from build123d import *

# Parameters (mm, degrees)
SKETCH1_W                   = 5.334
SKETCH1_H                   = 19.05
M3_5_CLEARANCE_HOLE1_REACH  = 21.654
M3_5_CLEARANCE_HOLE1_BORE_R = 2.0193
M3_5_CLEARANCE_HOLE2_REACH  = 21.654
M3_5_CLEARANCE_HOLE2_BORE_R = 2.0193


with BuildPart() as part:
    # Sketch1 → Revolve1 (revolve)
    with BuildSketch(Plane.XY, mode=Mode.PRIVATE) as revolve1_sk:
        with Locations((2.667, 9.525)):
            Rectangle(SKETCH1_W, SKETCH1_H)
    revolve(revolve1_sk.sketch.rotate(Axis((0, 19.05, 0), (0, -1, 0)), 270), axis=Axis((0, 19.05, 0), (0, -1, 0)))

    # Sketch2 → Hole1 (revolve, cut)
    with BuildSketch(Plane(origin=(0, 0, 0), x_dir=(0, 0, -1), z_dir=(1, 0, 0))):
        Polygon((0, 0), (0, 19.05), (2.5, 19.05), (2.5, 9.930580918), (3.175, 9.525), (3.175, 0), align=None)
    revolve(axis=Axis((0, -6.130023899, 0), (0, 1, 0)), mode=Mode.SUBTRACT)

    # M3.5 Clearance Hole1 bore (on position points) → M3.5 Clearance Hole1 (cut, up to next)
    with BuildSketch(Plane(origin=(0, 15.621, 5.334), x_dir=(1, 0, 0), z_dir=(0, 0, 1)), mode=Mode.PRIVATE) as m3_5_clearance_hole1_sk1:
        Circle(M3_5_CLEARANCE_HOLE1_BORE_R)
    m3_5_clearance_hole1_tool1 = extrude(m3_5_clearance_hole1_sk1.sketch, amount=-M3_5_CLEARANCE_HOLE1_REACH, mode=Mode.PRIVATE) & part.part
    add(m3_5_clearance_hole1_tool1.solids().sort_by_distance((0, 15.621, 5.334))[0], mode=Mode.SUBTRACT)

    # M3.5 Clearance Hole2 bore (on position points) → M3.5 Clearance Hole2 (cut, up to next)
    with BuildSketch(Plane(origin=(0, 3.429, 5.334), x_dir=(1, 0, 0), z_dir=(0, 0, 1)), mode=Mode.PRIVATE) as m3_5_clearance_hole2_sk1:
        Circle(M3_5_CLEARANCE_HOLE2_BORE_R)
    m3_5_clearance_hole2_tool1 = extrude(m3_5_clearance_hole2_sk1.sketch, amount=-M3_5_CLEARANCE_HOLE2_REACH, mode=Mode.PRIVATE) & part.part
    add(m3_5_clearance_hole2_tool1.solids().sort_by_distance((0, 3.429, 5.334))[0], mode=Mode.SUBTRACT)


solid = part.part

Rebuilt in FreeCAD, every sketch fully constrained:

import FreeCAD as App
import Part
import Sketcher
from FreeCAD import Vector
Q = App.Units.Quantity

doc = App.newDocument("Part")
body = doc.addObject("PartDesign::Body", "Body")

sketch1 = body.newObject("Sketcher::SketchObject", "Sketch")
sketch1.AttachmentSupport = (doc.getObject("XY_Plane"), [""])
sketch1.MapMode = "FlatFace"
sketch1.addGeometry(Part.LineSegment(Vector(0, 19, 0), Vector(0, 0, 0)), False)
sketch1.addGeometry(Part.LineSegment(Vector(0, 0, 0), Vector(5, 0, 0)), False)
sketch1.addGeometry(Part.LineSegment(Vector(5, 0, 0), Vector(5, 19, 0)), False)
sketch1.addGeometry(Part.LineSegment(Vector(5, 19, 0), Vector(0, 19, 0)), False)
sketch1.addConstraint(Sketcher.Constraint("Coincident", 0, 2, 1, 1))
sketch1.addConstraint(Sketcher.Constraint("Coincident", 1, 2, 2, 1))
sketch1.addConstraint(Sketcher.Constraint("Coincident", 2, 2, 3, 1))
sketch1.addConstraint(Sketcher.Constraint("Coincident", 3, 2, 0, 1))
sketch1.addConstraint(Sketcher.Constraint("Vertical", 0))
sketch1.addConstraint(Sketcher.Constraint("Horizontal", 1))
sketch1.addConstraint(Sketcher.Constraint("Vertical", 2))
sketch1.addConstraint(Sketcher.Constraint("Horizontal", 3))
sketch1.addConstraint(Sketcher.Constraint("Coincident", 0, 2, -1, 1))
sketch1.addConstraint(Sketcher.Constraint("DistanceX", 1, 1, 1, 2, Q("0.21 in")))
sketch1.addConstraint(Sketcher.Constraint("DistanceY", 0, 2, 0, 1, Q("0.75 in")))
revolution = body.newObject("PartDesign::Revolution", "Revolution")
revolution.Profile = sketch1
revolution.ReferenceAxis = (sketch1, ["V_Axis"])
revolution.Angle = 360

sketch2 = body.newObject("Sketcher::SketchObject", "Sketch001")
sketch2.AttachmentSupport = (doc.getObject("YZ_Plane"), [""])
sketch2.MapMode = "FlatFace"
sketch2.addGeometry(Part.LineSegment(Vector(19.1, 0, 0), Vector(0, 0, 0)), False)
sketch2.addGeometry(Part.LineSegment(Vector(0, 0, 0), Vector(0, -3.2, 0)), False)
sketch2.addGeometry(Part.LineSegment(Vector(0, -3.2, 0), Vector(9.5, -3.2, 0)), False)
sketch2.addGeometry(Part.LineSegment(Vector(9.5, -3.2, 0), Vector(9.9, -2.5, 0)), False)
sketch2.addGeometry(Part.LineSegment(Vector(9.9, -2.5, 0), Vector(19.1, -2.5, 0)), False)
sketch2.addGeometry(Part.LineSegment(Vector(19.1, -2.5, 0), Vector(19.1, 0, 0)), False)
sketch2.addConstraint(Sketcher.Constraint("Coincident", 0, 2, 1, 1))
sketch2.addConstraint(Sketcher.Constraint("Coincident", 1, 2, 2, 1))
sketch2.addConstraint(Sketcher.Constraint("Coincident", 2, 2, 3, 1))
sketch2.addConstraint(Sketcher.Constraint("Coincident", 3, 2, 4, 1))
sketch2.addConstraint(Sketcher.Constraint("Coincident", 4, 2, 5, 1))
sketch2.addConstraint(Sketcher.Constraint("Coincident", 5, 2, 0, 1))
sketch2.addConstraint(Sketcher.Constraint("Horizontal", 0))
sketch2.addConstraint(Sketcher.Constraint("Vertical", 1))
sketch2.addConstraint(Sketcher.Constraint("Horizontal", 2))
sketch2.addConstraint(Sketcher.Constraint("Horizontal", 4))
sketch2.addConstraint(Sketcher.Constraint("Vertical", 5))
sketch2.addConstraint(Sketcher.Constraint("Coincident", 0, 2, -1, 1))
sketch2.addConstraint(Sketcher.Constraint("Angle", 3, Q("59 deg")))
sketch2.addConstraint(Sketcher.Constraint("DistanceX", 0, 2, 0, 1, Q("0.75 in")))
sketch2.addConstraint(Sketcher.Constraint("DistanceX", 2, 1, 2, 2, Q("0.375 in")))
sketch2.addConstraint(Sketcher.Constraint("DistanceY", 1, 2, 1, 1, Q("0.125 in")))
sketch2.addConstraint(Sketcher.Constraint("DistanceY", 5, 1, 5, 2, Q("2.5 mm")))
groove = body.newObject("PartDesign::Groove", "Groove")
groove.Profile = sketch2
groove.ReferenceAxis = (sketch2, ["H_Axis"])
groove.Angle = 360

sketch3 = body.newObject("Sketcher::SketchObject", "Sketch002")
sketch3.AttachmentSupport = (doc.getObject("XY_Plane"), [""])
sketch3.MapMode = "FlatFace"
sketch3.AttachmentOffset = App.Placement(Vector(0, 0, 0.21 * 25.4), App.Rotation())
sketch3.addGeometry(Part.Circle(Vector(0, 15.6, 0), Vector(0, 0, 1), 2), False)
sketch3.addConstraint(Sketcher.Constraint("PointOnObject", 0, 3, -2))
sketch3.addConstraint(Sketcher.Constraint("Diameter", 0, Q("0.159 in")))
sketch3.addConstraint(Sketcher.Constraint("DistanceY", -1, 1, 0, 3, Q("0.615 in")))
pocket1 = body.newObject("PartDesign::Pocket", "Pocket")
pocket1.Profile = sketch3
pocket1.Type = "UpToFirst"

sketch4 = body.newObject("Sketcher::SketchObject", "Sketch003")
sketch4.AttachmentSupport = (doc.getObject("XY_Plane"), [""])
sketch4.MapMode = "FlatFace"
sketch4.AttachmentOffset = App.Placement(Vector(0, 0, 0.21 * 25.4), App.Rotation())
sketch4.addGeometry(Part.Circle(Vector(0, 3.4, 0), Vector(0, 0, 1), 2), False)
sketch4.addConstraint(Sketcher.Constraint("PointOnObject", 0, 3, -2))
sketch4.addConstraint(Sketcher.Constraint("Diameter", 0, Q("0.159 in")))
sketch4.addConstraint(Sketcher.Constraint("DistanceY", -1, 1, 0, 3, Q("0.135 in")))
pocket2 = body.newObject("PartDesign::Pocket", "Pocket001")
pocket2.Profile = sketch4
pocket2.Type = "UpToFirst"

doc.recompute()
